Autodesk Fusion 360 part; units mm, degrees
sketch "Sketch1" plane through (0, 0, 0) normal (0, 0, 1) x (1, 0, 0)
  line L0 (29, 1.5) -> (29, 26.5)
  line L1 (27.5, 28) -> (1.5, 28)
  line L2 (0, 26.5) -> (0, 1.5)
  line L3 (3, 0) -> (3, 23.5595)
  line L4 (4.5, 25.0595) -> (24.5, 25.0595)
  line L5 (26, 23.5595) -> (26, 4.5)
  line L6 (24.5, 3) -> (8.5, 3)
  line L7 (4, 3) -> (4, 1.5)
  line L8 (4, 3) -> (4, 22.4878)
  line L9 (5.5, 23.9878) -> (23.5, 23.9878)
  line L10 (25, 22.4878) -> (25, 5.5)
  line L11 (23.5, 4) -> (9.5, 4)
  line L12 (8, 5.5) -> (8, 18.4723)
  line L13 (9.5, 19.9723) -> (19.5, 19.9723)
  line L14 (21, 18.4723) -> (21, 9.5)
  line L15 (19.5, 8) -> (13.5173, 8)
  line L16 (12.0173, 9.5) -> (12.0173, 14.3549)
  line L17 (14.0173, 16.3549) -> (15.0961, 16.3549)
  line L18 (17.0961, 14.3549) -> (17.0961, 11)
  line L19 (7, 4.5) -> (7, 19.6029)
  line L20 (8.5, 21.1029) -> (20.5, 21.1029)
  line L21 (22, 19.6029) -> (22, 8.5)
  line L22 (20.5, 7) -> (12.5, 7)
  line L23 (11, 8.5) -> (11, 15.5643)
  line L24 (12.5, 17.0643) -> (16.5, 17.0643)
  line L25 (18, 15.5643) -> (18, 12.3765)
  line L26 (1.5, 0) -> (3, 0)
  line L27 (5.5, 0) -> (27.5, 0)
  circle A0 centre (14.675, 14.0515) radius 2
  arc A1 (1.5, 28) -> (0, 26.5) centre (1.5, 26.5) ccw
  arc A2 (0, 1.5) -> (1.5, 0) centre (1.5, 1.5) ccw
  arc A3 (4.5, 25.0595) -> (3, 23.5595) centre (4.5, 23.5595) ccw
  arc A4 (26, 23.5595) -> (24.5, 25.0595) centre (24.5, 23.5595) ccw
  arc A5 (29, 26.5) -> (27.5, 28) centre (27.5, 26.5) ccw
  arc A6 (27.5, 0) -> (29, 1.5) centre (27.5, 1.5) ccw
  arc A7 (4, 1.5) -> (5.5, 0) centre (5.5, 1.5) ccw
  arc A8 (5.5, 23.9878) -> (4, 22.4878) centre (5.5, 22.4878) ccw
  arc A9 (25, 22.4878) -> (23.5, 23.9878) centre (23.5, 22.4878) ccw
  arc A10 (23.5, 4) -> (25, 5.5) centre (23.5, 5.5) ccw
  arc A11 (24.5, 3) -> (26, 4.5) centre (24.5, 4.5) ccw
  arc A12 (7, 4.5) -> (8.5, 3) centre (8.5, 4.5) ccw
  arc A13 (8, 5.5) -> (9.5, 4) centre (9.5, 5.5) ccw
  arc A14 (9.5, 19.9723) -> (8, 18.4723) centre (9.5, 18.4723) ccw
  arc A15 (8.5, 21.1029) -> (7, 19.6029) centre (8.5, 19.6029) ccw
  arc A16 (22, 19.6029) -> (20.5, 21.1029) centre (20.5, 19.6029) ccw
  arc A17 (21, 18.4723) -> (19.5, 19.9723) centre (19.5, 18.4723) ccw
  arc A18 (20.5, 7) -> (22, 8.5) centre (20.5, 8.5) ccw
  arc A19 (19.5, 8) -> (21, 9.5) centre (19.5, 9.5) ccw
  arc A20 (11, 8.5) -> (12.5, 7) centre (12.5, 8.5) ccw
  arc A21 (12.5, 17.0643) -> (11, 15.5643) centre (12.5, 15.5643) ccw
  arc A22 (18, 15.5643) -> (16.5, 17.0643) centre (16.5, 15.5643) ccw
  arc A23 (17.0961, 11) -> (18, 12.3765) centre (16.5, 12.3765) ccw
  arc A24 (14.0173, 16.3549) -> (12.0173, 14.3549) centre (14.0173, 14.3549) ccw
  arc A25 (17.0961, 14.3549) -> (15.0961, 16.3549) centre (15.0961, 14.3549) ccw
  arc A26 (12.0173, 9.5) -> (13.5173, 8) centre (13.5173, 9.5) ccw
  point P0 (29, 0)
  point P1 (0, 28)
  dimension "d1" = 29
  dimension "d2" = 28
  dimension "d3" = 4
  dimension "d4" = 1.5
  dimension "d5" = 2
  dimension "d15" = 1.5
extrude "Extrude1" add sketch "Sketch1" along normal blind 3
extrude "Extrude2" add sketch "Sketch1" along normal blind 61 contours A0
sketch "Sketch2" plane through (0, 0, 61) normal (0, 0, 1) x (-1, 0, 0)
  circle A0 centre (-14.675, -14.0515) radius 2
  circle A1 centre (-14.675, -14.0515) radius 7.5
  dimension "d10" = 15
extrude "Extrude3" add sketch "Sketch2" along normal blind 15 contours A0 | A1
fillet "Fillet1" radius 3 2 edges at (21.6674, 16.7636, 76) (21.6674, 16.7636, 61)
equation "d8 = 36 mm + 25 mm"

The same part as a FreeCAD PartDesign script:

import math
import FreeCAD as App
import Part
import Sketcher
Q = App.Units.Quantity


def edges_at(feature, points):
    """Names of the edges that pass closest to the given points."""
    edges = feature.Shape.Edges
    near = lambda p: min(range(len(edges)), key=lambda i: edges[i].distToShape(Part.Vertex(*p))[0])
    return sorted({f"Edge{near(p) + 1}" for p in points})

doc = App.newDocument("Part")
body = doc.addObject("PartDesign::Body", "Body")

sketch1 = doc.addObject("Sketcher::SketchObject", "Sketch")
body.addObject(sketch1)
sketch1.AttachmentSupport = (doc.XY_Plane, [""])
sketch1.MapMode = "FlatFace"
sketch1.addGeometry(Part.ArcOfCircle(Part.Circle(App.Vector(27.5, 1.5, 0), App.Vector(0, 0, 1), 1.5), math.radians(-90), math.radians(0)), False)
sketch1.addGeometry(Part.LineSegment(App.Vector(29, 1.5, 0), App.Vector(29, 26.5, 0)), False)
sketch1.addGeometry(Part.ArcOfCircle(Part.Circle(App.Vector(27.5, 26.5, 0), App.Vector(0, 0, 1), 1.5), math.radians(0), math.radians(90)), False)
sketch1.addGeometry(Part.LineSegment(App.Vector(27.5, 28, 0), App.Vector(1.5, 28, 0)), False)
sketch1.addGeometry(Part.ArcOfCircle(Part.Circle(App.Vector(1.5, 26.5, 0), App.Vector(0, 0, 1), 1.5), math.radians(90), math.radians(180)), False)
sketch1.addGeometry(Part.LineSegment(App.Vector(0, 26.5, 0), App.Vector(0, 1.5, 0)), False)
sketch1.addGeometry(Part.ArcOfCircle(Part.Circle(App.Vector(1.5, 1.5, 0), App.Vector(0, 0, 1), 1.5), math.radians(180), math.radians(270)), False)
sketch1.addGeometry(Part.LineSegment(App.Vector(1.5, 0, 0), App.Vector(3, 0, 0)), False)
sketch1.addGeometry(Part.LineSegment(App.Vector(3, 0, 0), App.Vector(3, 23.5595, 0)), False)
sketch1.addGeometry(Part.ArcOfCircle(Part.Circle(App.Vector(4.5, 23.5595, 0), App.Vector(0, 0, 1), 1.5), math.radians(90), math.radians(180)), False)
sketch1.addGeometry(Part.LineSegment(App.Vector(4.5, 25.0595, 0), App.Vector(24.5, 25.0595, 0)), False)
sketch1.addGeometry(Part.ArcOfCircle(Part.Circle(App.Vector(24.5, 23.5595, 0), App.Vector(0, 0, 1), 1.5), math.radians(0), math.radians(90)), False)
sketch1.addGeometry(Part.LineSegment(App.Vector(26, 23.5595, 0), App.Vector(26, 4.5, 0)), False)
sketch1.addGeometry(Part.ArcOfCircle(Part.Circle(App.Vector(24.5, 4.5, 0), App.Vector(0, 0, 1), 1.5), math.radians(-90), math.radians(0)), False)
sketch1.addGeometry(Part.LineSegment(App.Vector(24.5, 3, 0), App.Vector(8.5, 3, 0)), False)
sketch1.addGeometry(Part.ArcOfCircle(Part.Circle(App.Vector(8.5, 4.5, 0), App.Vector(0, 0, 1), 1.5), math.radians(180), math.radians(270)), False)
sketch1.addGeometry(Part.LineSegment(App.Vector(7, 4.5, 0), App.Vector(7, 19.6029, 0)), False)
sketch1.addGeometry(Part.ArcOfCircle(Part.Circle(App.Vector(8.5, 19.6029, 0), App.Vector(0, 0, 1), 1.5), math.radians(90), math.radians(180)), False)
sketch1.addGeometry(Part.LineSegment(App.Vector(8.5, 21.1029, 0), App.Vector(20.5, 21.1029, 0)), False)
sketch1.addGeometry(Part.ArcOfCircle(Part.Circle(App.Vector(20.5, 19.6029, 0), App.Vector(0, 0, 1), 1.5), math.radians(0), math.radians(90)), False)
sketch1.addGeometry(Part.LineSegment(App.Vector(22, 19.6029, 0), App.Vector(22, 8.5, 0)), False)
sketch1.addGeometry(Part.ArcOfCircle(Part.Circle(App.Vector(20.5, 8.5, 0), App.Vector(0, 0, 1), 1.5), math.radians(-90), math.radians(0)), False)
sketch1.addGeometry(Part.LineSegment(App.Vector(20.5, 7, 0), App.Vector(12.5, 7, 0)), False)
sketch1.addGeometry(Part.ArcOfCircle(Part.Circle(App.Vector(12.5, 8.5, 0), App.Vector(0, 0, 1), 1.5), math.radians(180), math.radians(270)), False)
sketch1.addGeometry(Part.LineSegment(App.Vector(11, 8.5, 0), App.Vector(11, 15.5643, 0)), False)
sketch1.addGeometry(Part.ArcOfCircle(Part.Circle(App.Vector(12.5, 15.5643, 0), App.Vector(0, 0, 1), 1.5), math.radians(90), math.radians(180)), False)
sketch1.addGeometry(Part.LineSegment(App.Vector(12.5, 17.0643, 0), App.Vector(16.5, 17.0643, 0)), False)
sketch1.addGeometry(Part.ArcOfCircle(Part.Circle(App.Vector(16.5, 15.5643, 0), App.Vector(0, 0, 1), 1.5), math.radians(0), math.radians(90)), False)
sketch1.addGeometry(Part.LineSegment(App.Vector(18, 15.5643, 0), App.Vector(18, 12.3765, 0)), False)
sketch1.addGeometry(Part.ArcOfCircle(Part.Circle(App.Vector(16.5, 12.3765, 0), App.Vector(0, 0, 1), 1.500029), math.radians(-66.584742), math.radians(0)), False)
sketch1.addGeometry(Part.LineSegment(App.Vector(17.0961, 11, 0), App.Vector(17.0961, 14.3549, 0)), False)
sketch1.addGeometry(Part.ArcOfCircle(Part.Circle(App.Vector(15.0961, 14.3549, 0), App.Vector(0, 0, 1), 2), math.radians(0), math.radians(90)), False)
sketch1.addGeometry(Part.LineSegment(App.Vector(15.0961, 16.3549, 0), App.Vector(14.0173, 16.3549, 0)), False)
sketch1.addGeometry(Part.ArcOfCircle(Part.Circle(App.Vector(14.0173, 14.3549, 0), App.Vector(0, 0, 1), 2), math.radians(90), math.radians(180)), False)
sketch1.addGeometry(Part.LineSegment(App.Vector(12.0173, 14.3549, 0), App.Vector(12.0173, 9.5, 0)), False)
sketch1.addGeometry(Part.ArcOfCircle(Part.Circle(App.Vector(13.5173, 9.5, 0), App.Vector(0, 0, 1), 1.5), math.radians(180), math.radians(270)), False)
sketch1.addGeometry(Part.LineSegment(App.Vector(13.5173, 8, 0), App.Vector(19.5, 8, 0)), False)
sketch1.addGeometry(Part.ArcOfCircle(Part.Circle(App.Vector(19.5, 9.5, 0), App.Vector(0, 0, 1), 1.5), math.radians(-90), math.radians(0)), False)
sketch1.addGeometry(Part.LineSegment(App.Vector(21, 9.5, 0), App.Vector(21, 18.4723, 0)), False)
sketch1.addGeometry(Part.ArcOfCircle(Part.Circle(App.Vector(19.5, 18.4723, 0), App.Vector(0, 0, 1), 1.5), math.radians(0), math.radians(90)), False)
sketch1.addGeometry(Part.LineSegment(App.Vector(19.5, 19.9723, 0), App.Vector(9.5, 19.9723, 0)), False)
sketch1.addGeometry(Part.ArcOfCircle(Part.Circle(App.Vector(9.5, 18.4723, 0), App.Vector(0, 0, 1), 1.5), math.radians(90), math.radians(180)), False)
sketch1.addGeometry(Part.LineSegment(App.Vector(8, 18.4723, 0), App.Vector(8, 5.5, 0)), False)
sketch1.addGeometry(Part.ArcOfCircle(Part.Circle(App.Vector(9.5, 5.5, 0), App.Vector(0, 0, 1), 1.5), math.radians(180), math.radians(270)), False)
sketch1.addGeometry(Part.LineSegment(App.Vector(9.5, 4, 0), App.Vector(23.5, 4, 0)), False)
sketch1.addGeometry(Part.ArcOfCircle(Part.Circle(App.Vector(23.5, 5.5, 0), App.Vector(0, 0, 1), 1.5), math.radians(-90), math.radians(0)), False)
sketch1.addGeometry(Part.LineSegment(App.Vector(25, 5.5, 0), App.Vector(25, 22.4878, 0)), False)
sketch1.addGeometry(Part.ArcOfCircle(Part.Circle(App.Vector(23.5, 22.4878, 0), App.Vector(0, 0, 1), 1.5), math.radians(0), math.radians(90)), False)
sketch1.addGeometry(Part.LineSegment(App.Vector(23.5, 23.9878, 0), App.Vector(5.5, 23.9878, 0)), False)
sketch1.addGeometry(Part.ArcOfCircle(Part.Circle(App.Vector(5.5, 22.4878, 0), App.Vector(0, 0, 1), 1.5), math.radians(90), math.radians(180)), False)
sketch1.addGeometry(Part.LineSegment(App.Vector(4, 22.4878, 0), App.Vector(4, 1.5, 0)), False)
sketch1.addGeometry(Part.ArcOfCircle(Part.Circle(App.Vector(5.5, 1.5, 0), App.Vector(0, 0, 1), 1.5), math.radians(180), math.radians(270)), False)
sketch1.addGeometry(Part.LineSegment(App.Vector(5.5, 0, 0), App.Vector(27.5, 0, 0)), False)
sketch1.addGeometry(Part.Circle(App.Vector(14.675, 14.0515, 0), App.Vector(0, 0, 1), 2), False)
sketch1.addConstraint(Sketcher.Constraint("Tangent", 0, 2, 1, 1))
sketch1.addConstraint(Sketcher.Constraint("Tangent", 1, 2, 2, 1))
sketch1.addConstraint(Sketcher.Constraint("Tangent", 2, 2, 3, 1))
sketch1.addConstraint(Sketcher.Constraint("Tangent", 3, 2, 4, 1))
sketch1.addConstraint(Sketcher.Constraint("Tangent", 4, 2, 5, 1))
sketch1.addConstraint(Sketcher.Constraint("Tangent", 5, 2, 6, 1))
sketch1.addConstraint(Sketcher.Constraint("Tangent", 6, 2, 7, 1))
sketch1.addConstraint(Sketcher.Constraint("Coincident", 7, 2, 8, 1))
sketch1.addConstraint(Sketcher.Constraint("Tangent", 8, 2, 9, 2))
sketch1.addConstraint(Sketcher.Constraint("Tangent", 9, 1, 10, 1))
sketch1.addConstraint(Sketcher.Constraint("Tangent", 10, 2, 11, 2))
sketch1.addConstraint(Sketcher.Constraint("Tangent", 11, 1, 12, 1))
sketch1.addConstraint(Sketcher.Constraint("Tangent", 12, 2, 13, 2))
sketch1.addConstraint(Sketcher.Constraint("Tangent", 13, 1, 14, 1))
sketch1.addConstraint(Sketcher.Constraint("Tangent", 14, 2, 15, 2))
sketch1.addConstraint(Sketcher.Constraint("Tangent", 15, 1, 16, 1))
sketch1.addConstraint(Sketcher.Constraint("Tangent", 16, 2, 17, 2))
sketch1.addConstraint(Sketcher.Constraint("Tangent", 17, 1, 18, 1))
sketch1.addConstraint(Sketcher.Constraint("Tangent", 18, 2, 19, 2))
sketch1.addConstraint(Sketcher.Constraint("Tangent", 19, 1, 20, 1))
sketch1.addConstraint(Sketcher.Constraint("Tangent", 20, 2, 21, 2))
sketch1.addConstraint(Sketcher.Constraint("Tangent", 21, 1, 22, 1))
sketch1.addConstraint(Sketcher.Constraint("Tangent", 22, 2, 23, 2))
sketch1.addConstraint(Sketcher.Constraint("Tangent", 23, 1, 24, 1))
sketch1.addConstraint(Sketcher.Constraint("Tangent", 24, 2, 25, 2))
sketch1.addConstraint(Sketcher.Constraint("Tangent", 25, 1, 26, 1))
sketch1.addConstraint(Sketcher.Constraint("Tangent", 26, 2, 27, 2))
sketch1.addConstraint(Sketcher.Constraint("Tangent", 27, 1, 28, 1))
sketch1.addConstraint(Sketcher.Constraint("Tangent", 28, 2, 29, 2))
sketch1.addConstraint(Sketcher.Constraint("Coincident", 29, 1, 30, 1))
sketch1.addConstraint(Sketcher.Constraint("Tangent", 30, 2, 31, 1))
sketch1.addConstraint(Sketcher.Constraint("Tangent", 31, 2, 32, 1))
sketch1.addConstraint(Sketcher.Constraint("Tangent", 32, 2, 33, 1))
sketch1.addConstraint(Sketcher.Constraint("Tangent", 33, 2, 34, 1))
sketch1.addConstraint(Sketcher.Constraint("Tangent", 34, 2, 35, 1))
sketch1.addConstraint(Sketcher.Constraint("Tangent", 35, 2, 36, 1))
sketch1.addConstraint(Sketcher.Constraint("Tangent", 36, 2, 37, 1))
sketch1.addConstraint(Sketcher.Constraint("Tangent", 37, 2, 38, 1))
sketch1.addConstraint(Sketcher.Constraint("Tangent", 38, 2, 39, 1))
sketch1.addConstraint(Sketcher.Constraint("Tangent", 39, 2, 40, 1))
sketch1.addConstraint(Sketcher.Constraint("Tangent", 40, 2, 41, 1))
sketch1.addConstraint(Sketcher.Constraint("Tangent", 41, 2, 42, 1))
sketch1.addConstraint(Sketcher.Constraint("Tangent", 42, 2, 43, 1))
sketch1.addConstraint(Sketcher.Constraint("Tangent", 43, 2, 44, 1))
sketch1.addConstraint(Sketcher.Constraint("Tangent", 44, 2, 45, 1))
sketch1.addConstraint(Sketcher.Constraint("Tangent", 45, 2, 46, 1))
sketch1.addConstraint(Sketcher.Constraint("Tangent", 46, 2, 47, 1))
sketch1.addConstraint(Sketcher.Constraint("Tangent", 47, 2, 48, 1))
sketch1.addConstraint(Sketcher.Constraint("Tangent", 48, 2, 49, 1))
sketch1.addConstraint(Sketcher.Constraint("Tangent", 49, 2, 50, 1))
sketch1.addConstraint(Sketcher.Constraint("Tangent", 50, 2, 51, 1))
sketch1.addConstraint(Sketcher.Constraint("Tangent", 51, 2, 52, 1))
sketch1.addConstraint(Sketcher.Constraint("Tangent", 52, 2, 0, 1))
sketch1.addConstraint(Sketcher.Constraint("Vertical", 1))
sketch1.addConstraint(Sketcher.Constraint("Horizontal", 3))
sketch1.addConstraint(Sketcher.Constraint("Vertical", 5))
sketch1.addConstraint(Sketcher.Constraint("Horizontal", 7))
sketch1.addConstraint(Sketcher.Constraint("Vertical", 8))
sketch1.addConstraint(Sketcher.Constraint("Horizontal", 10))
sketch1.addConstraint(Sketcher.Constraint("Vertical", 12))
sketch1.addConstraint(Sketcher.Constraint("Horizontal", 14))
sketch1.addConstraint(Sketcher.Constraint("Vertical", 16))
sketch1.addConstraint(Sketcher.Constraint("Horizontal", 18))
sketch1.addConstraint(Sketcher.Constraint("Vertical", 20))
sketch1.addConstraint(Sketcher.Constraint("Horizontal", 22))
sketch1.addConstraint(Sketcher.Constraint("Vertical", 24))
sketch1.addConstraint(Sketcher.Constraint("Horizontal", 26))
sketch1.addConstraint(Sketcher.Constraint("Vertical", 28))
sketch1.addConstraint(Sketcher.Constraint("Vertical", 30))
sketch1.addConstraint(Sketcher.Constraint("Horizontal", 32))
sketch1.addConstraint(Sketcher.Constraint("Vertical", 34))
sketch1.addConstraint(Sketcher.Constraint("Horizontal", 36))
sketch1.addConstraint(Sketcher.Constraint("Vertical", 38))
sketch1.addConstraint(Sketcher.Constraint("Horizontal", 40))
sketch1.addConstraint(Sketcher.Constraint("Vertical", 42))
sketch1.addConstraint(Sketcher.Constraint("Horizontal", 44))
sketch1.addConstraint(Sketcher.Constraint("Vertical", 46))
sketch1.addConstraint(Sketcher.Constraint("Horizontal", 48))
sketch1.addConstraint(Sketcher.Constraint("Vertical", 50))
sketch1.addConstraint(Sketcher.Constraint("Horizontal", 52))
sketch1.addConstraint(Sketcher.Constraint("Equal", 0, 2))
sketch1.addConstraint(Sketcher.Constraint("Equal", 2, 4))
sketch1.addConstraint(Sketcher.Constraint("Equal", 4, 6))
sketch1.addConstraint(Sketcher.Constraint("Equal", 6, 9))
sketch1.addConstraint(Sketcher.Constraint("Equal", 9, 11))
sketch1.addConstraint(Sketcher.Constraint("Equal", 11, 13))
sketch1.addConstraint(Sketcher.Constraint("Equal", 13, 15))
sketch1.addConstraint(Sketcher.Constraint("Equal", 15, 17))
sketch1.addConstraint(Sketcher.Constraint("Equal", 17, 19))
sketch1.addConstraint(Sketcher.Constraint("Equal", 19, 21))
sketch1.addConstraint(Sketcher.Constraint("Equal", 21, 23))
sketch1.addConstraint(Sketcher.Constraint("Equal", 23, 25))
sketch1.addConstraint(Sketcher.Constraint("Equal", 25, 27))
sketch1.addConstraint(Sketcher.Constraint("Equal", 27, 29))
sketch1.addConstraint(Sketcher.Constraint("Equal", 31, 33))
sketch1.addConstraint(Sketcher.Constraint("Equal", 29, 35))
sketch1.addConstraint(Sketcher.Constraint("Equal", 35, 37))
sketch1.addConstraint(Sketcher.Constraint("Equal", 37, 39))
sketch1.addConstraint(Sketcher.Constraint("Equal", 39, 41))
sketch1.addConstraint(Sketcher.Constraint("Equal", 41, 43))
sketch1.addConstraint(Sketcher.Constraint("Equal", 43, 45))
sketch1.addConstraint(Sketcher.Constraint("Equal", 45, 47))
sketch1.addConstraint(Sketcher.Constraint("Equal", 47, 49))
sketch1.addConstraint(Sketcher.Constraint("Equal", 49, 51))
sketch1.addConstraint(Sketcher.Constraint("Equal", 33, 53))
sketch1.addConstraint(Sketcher.Constraint("PointOnObject", 4, 2, -2))
sketch1.addConstraint(Sketcher.Constraint("PointOnObject", 6, 2, -1))
sketch1.addConstraint(Sketcher.Constraint("PointOnObject", 51, 2, -1))
sketch1.addConstraint(Sketcher.Constraint("Diameter", 53, Q("4 mm")))
sketch1.addConstraint(Sketcher.Constraint("Radius", 0, Q("1.5 mm")))
sketch1.addConstraint(Sketcher.Constraint("DistanceX", 26, 1, 26, 2, Q("4 mm")))
sketch1.addConstraint(Sketcher.Constraint("DistanceX", 7, 1, 7, 2, Q("1.5 mm")))
sketch1.addConstraint(Sketcher.Constraint("DistanceX", -1, 1, 0, 2, Q("29 mm")))
sketch1.addConstraint(Sketcher.Constraint("DistanceY", -1, 1, 2, 2, Q("28 mm")))
sketch1.addConstraint(Sketcher.Constraint("DistanceY", -1, 1, 43, 2, Q("4 mm")))
sketch1.addConstraint(Sketcher.Constraint("DistanceX", -1, 1, 49, 2, Q("4 mm")))
sketch1.addConstraint(Sketcher.Constraint("DistanceX", 10, 1, 10, 2, Q("20 mm")))
sketch1.addConstraint(Sketcher.Constraint("DistanceX", 14, 2, 14, 1, Q("16 mm")))
sketch1.addConstraint(Sketcher.Constraint("DistanceX", 18, 1, 18, 2, Q("12 mm")))
sketch1.addConstraint(Sketcher.Constraint("DistanceX", 22, 2, 22, 1, Q("8 mm")))
sketch1.addConstraint(Sketcher.Constraint("DistanceX", 40, 2, 40, 1, Q("10 mm")))
sketch1.addConstraint(Sketcher.Constraint("DistanceX", 44, 1, 44, 2, Q("14 mm")))
sketch1.addConstraint(Sketcher.Constraint("DistanceX", 48, 2, 48, 1, Q("18 mm")))
sketch1.addConstraint(Sketcher.Constraint("DistanceY", -1, 1, 13, 1, Q("3 mm")))
sketch1.addConstraint(Sketcher.Constraint("DistanceY", -1, 1, 21, 1, Q("7 mm")))
sketch1.addConstraint(Sketcher.Constraint("DistanceY", -1, 1, 29, 1, Q("11 mm")))
sketch1.addConstraint(Sketcher.Constraint("DistanceY", -1, 1, 35, 2, Q("8 mm")))
sketch1.addConstraint(Sketcher.Constraint("DistanceY", 16, 1, 16, 2, Q("15.103 mm")))
sketch1.addConstraint(Sketcher.Constraint("DistanceY", 30, 1, 30, 2, Q("3.355 mm")))
sketch1.addConstraint(Sketcher.Constraint("DistanceX", 32, 2, 32, 1, Q("1.0788 mm")))
sketch1.addConstraint(Sketcher.Constraint("DistanceX", 36, 1, 36, 2, Q("5.9827 mm")))
sketch1.addConstraint(Sketcher.Constraint("DistanceY", 8, 1, 8, 2, Q("23.5595 mm")))
sketch1.addConstraint(Sketcher.Constraint("DistanceY", 24, 1, 24, 2, Q("7.0643 mm")))
sketch1.addConstraint(Sketcher.Constraint("DistanceY", 38, 1, 38, 2, Q("8.9723 mm")))
sketch1.addConstraint(Sketcher.Constraint("DistanceY", 46, 1, 46, 2, Q("16.9878 mm")))
sketch1.addConstraint(Sketcher.Constraint("DistanceX", -1, 1, 53, 3, Q("14.675 mm")))
sketch1.addConstraint(Sketcher.Constraint("DistanceY", -1, 1, 53, 3, Q("14.0515 mm")))
pad1 = doc.addObject("PartDesign::Pad", "Pad")
body.addObject(pad1)
pad1.Profile = sketch1
pad1.Length = 3

sketch2 = doc.addObject("Sketcher::SketchObject", "Sketch001")
body.addObject(sketch2)
sketch2.AttachmentSupport = (doc.XY_Plane, [""])
sketch2.MapMode = "FlatFace"
sketch2.addGeometry(Part.Circle(App.Vector(14.675, 14.0515, 0), App.Vector(0, 0, 1), 2), False)
sketch2.addConstraint(Sketcher.Constraint("Diameter", 0, Q("4 mm")))
sketch2.addConstraint(Sketcher.Constraint("DistanceX", -1, 1, 0, 3, Q("14.675 mm")))
sketch2.addConstraint(Sketcher.Constraint("DistanceY", -1, 1, 0, 3, Q("14.0515 mm")))
pad2 = doc.addObject("PartDesign::Pad", "Pad001")
body.addObject(pad2)
pad2.Profile = sketch2
pad2.Length = 61

sketch3 = doc.addObject("Sketcher::SketchObject", "Sketch002")
body.addObject(sketch3)
sketch3.AttachmentSupport = (doc.XY_Plane, [""])
sketch3.MapMode = "FlatFace"
sketch3.AttachmentOffset = App.Placement(App.Vector(0, 0, 61), App.Rotation())
sketch3.addGeometry(Part.Circle(App.Vector(14.675, 14.0515, 0), App.Vector(0, 0, 1), 7.5), False)
sketch3.addConstraint(Sketcher.Constraint("Diameter", 0, Q("15 mm")))
sketch3.addConstraint(Sketcher.Constraint("DistanceX", -1, 1, 0, 3, Q("14.675 mm")))
sketch3.addConstraint(Sketcher.Constraint("DistanceY", -1, 1, 0, 3, Q("14.0515 mm")))
pad3 = doc.addObject("PartDesign::Pad", "Pad002")
body.addObject(pad3)
pad3.Profile = sketch3
pad3.Length = 15
doc.recompute()

fillet = doc.addObject("PartDesign::Fillet", "Fillet")
body.addObject(fillet)
fillet.Base = (pad3, edges_at(pad3, [(21.667, 16.764, 76), (21.667, 16.764, 61)]))
fillet.Radius = 3

doc.recompute()
